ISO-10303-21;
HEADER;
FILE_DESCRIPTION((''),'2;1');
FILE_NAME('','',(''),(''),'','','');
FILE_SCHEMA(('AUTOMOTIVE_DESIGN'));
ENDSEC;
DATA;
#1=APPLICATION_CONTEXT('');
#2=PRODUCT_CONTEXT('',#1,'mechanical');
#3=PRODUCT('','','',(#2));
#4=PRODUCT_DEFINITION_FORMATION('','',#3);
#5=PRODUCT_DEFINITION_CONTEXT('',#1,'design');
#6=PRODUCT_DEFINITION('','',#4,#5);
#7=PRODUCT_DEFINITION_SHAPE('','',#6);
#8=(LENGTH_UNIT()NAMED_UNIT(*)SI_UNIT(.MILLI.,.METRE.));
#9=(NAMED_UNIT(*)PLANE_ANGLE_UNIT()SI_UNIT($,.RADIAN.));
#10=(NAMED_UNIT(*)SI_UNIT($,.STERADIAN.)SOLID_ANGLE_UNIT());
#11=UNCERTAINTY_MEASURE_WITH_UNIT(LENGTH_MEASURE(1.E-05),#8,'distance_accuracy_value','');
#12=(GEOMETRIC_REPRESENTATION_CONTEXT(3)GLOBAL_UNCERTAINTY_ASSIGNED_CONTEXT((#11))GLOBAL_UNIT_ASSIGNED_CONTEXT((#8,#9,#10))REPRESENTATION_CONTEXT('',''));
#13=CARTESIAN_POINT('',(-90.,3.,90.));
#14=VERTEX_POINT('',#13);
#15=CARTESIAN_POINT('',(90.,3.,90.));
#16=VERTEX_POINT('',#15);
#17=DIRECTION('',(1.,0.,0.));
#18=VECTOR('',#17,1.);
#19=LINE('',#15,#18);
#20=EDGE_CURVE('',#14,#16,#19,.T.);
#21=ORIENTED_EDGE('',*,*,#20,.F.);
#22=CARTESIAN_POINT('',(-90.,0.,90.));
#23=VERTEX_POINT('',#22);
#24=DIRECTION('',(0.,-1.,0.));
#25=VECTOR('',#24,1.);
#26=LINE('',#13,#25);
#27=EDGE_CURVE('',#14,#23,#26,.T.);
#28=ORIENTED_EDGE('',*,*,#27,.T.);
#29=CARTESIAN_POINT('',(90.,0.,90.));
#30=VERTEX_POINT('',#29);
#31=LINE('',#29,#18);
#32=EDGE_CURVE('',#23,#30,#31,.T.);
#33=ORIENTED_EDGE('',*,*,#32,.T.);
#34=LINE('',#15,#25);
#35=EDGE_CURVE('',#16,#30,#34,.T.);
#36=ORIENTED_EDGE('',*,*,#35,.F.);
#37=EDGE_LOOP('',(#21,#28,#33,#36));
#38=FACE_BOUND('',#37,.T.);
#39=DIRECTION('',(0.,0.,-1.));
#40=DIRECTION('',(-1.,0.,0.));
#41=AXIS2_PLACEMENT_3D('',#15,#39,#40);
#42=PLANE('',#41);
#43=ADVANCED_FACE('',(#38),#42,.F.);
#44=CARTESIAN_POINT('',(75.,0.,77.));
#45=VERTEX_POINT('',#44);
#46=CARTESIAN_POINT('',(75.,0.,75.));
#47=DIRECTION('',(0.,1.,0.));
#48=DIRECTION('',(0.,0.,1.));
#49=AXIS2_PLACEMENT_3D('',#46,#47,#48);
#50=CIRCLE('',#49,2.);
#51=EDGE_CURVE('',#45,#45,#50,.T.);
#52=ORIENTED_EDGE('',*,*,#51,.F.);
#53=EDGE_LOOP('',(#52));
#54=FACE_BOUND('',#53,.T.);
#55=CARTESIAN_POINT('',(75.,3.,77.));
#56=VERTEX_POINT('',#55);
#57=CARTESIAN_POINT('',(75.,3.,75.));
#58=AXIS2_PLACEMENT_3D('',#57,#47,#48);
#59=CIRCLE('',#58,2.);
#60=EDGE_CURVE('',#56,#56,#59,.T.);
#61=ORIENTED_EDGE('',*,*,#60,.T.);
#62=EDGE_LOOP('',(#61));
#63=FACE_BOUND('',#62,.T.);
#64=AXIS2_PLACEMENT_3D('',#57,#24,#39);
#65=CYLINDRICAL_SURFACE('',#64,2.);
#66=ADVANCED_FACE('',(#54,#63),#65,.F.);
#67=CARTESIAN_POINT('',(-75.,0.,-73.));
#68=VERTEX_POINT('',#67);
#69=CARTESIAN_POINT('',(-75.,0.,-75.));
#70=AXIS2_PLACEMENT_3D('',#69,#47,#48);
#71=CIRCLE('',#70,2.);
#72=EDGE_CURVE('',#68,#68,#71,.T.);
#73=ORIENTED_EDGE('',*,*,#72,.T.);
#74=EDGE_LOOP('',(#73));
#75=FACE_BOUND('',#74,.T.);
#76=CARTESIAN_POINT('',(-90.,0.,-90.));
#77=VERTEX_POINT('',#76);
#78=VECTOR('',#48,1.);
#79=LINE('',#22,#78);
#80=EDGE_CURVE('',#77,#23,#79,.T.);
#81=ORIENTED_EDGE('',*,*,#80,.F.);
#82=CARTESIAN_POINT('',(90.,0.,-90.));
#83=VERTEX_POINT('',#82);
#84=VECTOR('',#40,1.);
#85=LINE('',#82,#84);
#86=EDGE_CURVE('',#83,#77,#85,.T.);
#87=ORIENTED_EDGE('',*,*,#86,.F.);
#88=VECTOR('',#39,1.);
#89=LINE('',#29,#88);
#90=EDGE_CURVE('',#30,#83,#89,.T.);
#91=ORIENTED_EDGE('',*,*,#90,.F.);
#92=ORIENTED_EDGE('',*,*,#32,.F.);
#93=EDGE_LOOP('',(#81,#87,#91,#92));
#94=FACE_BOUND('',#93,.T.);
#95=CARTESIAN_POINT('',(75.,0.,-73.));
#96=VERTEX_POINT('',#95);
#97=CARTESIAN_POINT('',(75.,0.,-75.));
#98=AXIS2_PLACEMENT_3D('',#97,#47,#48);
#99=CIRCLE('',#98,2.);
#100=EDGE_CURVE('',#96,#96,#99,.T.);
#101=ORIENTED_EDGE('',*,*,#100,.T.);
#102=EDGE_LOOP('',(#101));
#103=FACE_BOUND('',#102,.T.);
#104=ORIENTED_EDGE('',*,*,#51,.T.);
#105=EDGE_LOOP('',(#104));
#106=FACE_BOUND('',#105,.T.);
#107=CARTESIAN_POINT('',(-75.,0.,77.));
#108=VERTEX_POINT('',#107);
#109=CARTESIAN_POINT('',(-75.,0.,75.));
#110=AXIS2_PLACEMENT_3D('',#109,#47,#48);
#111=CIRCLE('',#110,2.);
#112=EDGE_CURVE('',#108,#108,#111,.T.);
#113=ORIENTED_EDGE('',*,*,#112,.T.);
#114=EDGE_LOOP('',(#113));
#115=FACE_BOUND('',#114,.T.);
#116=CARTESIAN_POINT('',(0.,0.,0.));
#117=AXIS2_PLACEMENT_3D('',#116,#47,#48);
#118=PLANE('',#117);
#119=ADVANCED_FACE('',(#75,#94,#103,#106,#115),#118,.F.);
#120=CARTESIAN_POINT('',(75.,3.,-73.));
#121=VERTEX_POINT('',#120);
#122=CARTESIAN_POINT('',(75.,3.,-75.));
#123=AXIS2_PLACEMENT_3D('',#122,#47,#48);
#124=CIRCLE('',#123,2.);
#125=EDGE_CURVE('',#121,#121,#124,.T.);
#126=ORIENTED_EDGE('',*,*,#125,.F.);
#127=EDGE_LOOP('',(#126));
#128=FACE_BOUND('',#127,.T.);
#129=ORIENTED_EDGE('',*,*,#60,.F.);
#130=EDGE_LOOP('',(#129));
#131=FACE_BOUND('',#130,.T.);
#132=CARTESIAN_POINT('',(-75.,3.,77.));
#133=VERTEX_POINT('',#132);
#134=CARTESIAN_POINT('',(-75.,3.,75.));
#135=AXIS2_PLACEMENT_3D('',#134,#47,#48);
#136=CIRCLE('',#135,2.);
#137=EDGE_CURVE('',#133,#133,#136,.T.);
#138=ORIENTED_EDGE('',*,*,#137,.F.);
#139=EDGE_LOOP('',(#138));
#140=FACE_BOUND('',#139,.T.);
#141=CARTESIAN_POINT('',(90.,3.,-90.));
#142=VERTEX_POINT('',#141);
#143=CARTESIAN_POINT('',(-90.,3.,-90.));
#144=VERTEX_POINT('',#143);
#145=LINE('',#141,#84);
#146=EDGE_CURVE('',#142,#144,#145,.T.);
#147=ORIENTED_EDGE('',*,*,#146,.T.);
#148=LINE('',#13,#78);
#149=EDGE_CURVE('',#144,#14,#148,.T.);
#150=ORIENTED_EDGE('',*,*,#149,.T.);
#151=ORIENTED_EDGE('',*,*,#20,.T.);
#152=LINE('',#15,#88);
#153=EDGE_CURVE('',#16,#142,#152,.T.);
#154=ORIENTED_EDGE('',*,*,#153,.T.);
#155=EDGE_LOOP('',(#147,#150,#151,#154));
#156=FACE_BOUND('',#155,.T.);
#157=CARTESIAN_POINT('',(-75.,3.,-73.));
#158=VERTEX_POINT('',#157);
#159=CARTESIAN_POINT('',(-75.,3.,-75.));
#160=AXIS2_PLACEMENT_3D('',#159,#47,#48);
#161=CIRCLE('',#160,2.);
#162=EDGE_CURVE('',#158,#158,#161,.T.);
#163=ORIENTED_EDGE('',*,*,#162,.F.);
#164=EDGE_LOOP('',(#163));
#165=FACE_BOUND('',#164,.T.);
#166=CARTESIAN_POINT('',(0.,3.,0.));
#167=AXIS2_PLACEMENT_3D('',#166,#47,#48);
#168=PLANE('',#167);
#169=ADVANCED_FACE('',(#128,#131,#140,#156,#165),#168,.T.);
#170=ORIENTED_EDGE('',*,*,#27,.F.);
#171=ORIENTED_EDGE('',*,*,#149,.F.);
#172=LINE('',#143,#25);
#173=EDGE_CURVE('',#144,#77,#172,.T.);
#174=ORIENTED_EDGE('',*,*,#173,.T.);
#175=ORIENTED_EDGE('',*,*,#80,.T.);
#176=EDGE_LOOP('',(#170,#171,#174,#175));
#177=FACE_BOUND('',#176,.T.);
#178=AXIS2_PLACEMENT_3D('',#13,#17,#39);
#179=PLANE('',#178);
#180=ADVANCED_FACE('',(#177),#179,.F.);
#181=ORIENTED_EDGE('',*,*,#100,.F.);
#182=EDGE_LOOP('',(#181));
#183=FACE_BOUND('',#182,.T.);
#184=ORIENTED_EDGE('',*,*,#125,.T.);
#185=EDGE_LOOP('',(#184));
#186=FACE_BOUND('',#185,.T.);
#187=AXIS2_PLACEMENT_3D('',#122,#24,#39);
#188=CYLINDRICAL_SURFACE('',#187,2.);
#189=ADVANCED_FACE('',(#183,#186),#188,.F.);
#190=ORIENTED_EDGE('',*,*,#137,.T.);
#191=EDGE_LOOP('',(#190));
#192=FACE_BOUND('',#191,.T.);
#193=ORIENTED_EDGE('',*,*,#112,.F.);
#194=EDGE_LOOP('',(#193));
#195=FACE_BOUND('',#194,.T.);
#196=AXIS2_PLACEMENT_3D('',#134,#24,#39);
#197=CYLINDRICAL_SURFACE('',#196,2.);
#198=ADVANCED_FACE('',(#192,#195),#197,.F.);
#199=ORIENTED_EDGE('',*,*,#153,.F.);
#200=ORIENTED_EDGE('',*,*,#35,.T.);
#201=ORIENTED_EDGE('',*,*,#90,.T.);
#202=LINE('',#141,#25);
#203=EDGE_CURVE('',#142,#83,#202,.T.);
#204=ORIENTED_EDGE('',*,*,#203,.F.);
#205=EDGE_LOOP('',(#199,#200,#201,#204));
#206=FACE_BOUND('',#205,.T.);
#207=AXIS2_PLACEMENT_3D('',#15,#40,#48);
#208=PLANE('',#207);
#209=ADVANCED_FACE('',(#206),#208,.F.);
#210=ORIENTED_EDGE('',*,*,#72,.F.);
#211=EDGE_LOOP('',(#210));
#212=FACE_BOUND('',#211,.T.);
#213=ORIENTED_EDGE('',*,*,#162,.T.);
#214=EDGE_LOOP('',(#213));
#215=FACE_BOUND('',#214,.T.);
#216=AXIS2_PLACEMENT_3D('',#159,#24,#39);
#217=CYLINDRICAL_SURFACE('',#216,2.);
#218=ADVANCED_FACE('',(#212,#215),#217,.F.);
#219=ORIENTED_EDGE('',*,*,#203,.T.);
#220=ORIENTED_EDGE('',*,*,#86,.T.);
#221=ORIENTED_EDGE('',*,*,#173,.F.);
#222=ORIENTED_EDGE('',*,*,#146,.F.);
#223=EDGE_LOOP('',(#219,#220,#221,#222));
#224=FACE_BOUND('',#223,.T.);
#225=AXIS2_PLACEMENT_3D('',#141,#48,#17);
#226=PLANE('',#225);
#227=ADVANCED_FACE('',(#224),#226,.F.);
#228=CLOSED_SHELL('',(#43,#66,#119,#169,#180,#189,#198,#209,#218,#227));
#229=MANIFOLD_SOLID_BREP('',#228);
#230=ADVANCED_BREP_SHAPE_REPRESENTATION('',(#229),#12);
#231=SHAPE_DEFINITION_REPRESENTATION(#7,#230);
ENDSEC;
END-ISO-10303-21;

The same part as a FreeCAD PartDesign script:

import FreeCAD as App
import Part
import Sketcher
from FreeCAD import Vector


def add_polygon(sketch, points):
    """Adds a closed chain of lines whose ends are joined by coincident constraints."""
    first, n = sketch.GeometryCount, len(points)
    for a, b in zip(points, points[1:] + points[:1]):
        sketch.addGeometry(Part.LineSegment(App.Vector(*a, 0), App.Vector(*b, 0)), False)
    for i in range(n):
        sketch.addConstraint(Sketcher.Constraint("Coincident", first + i, 2, first + (i + 1) % n, 1))

doc = App.newDocument("Part")
body = doc.addObject("PartDesign::Body", "Body")

sketch1 = body.newObject("Sketcher::SketchObject", "Sketch")
sketch1.AttachmentSupport = (doc.getObject("XZ_Plane"), [""])
sketch1.MapMode = "FlatFace"
add_polygon(sketch1, [(-90, -90), (-90, 90), (90, 90), (90, -90)])
sketch1.addGeometry(Part.Circle(Vector(-75, 75, 0), Vector(0, 0, 1), 2), False)
sketch1.addGeometry(Part.Circle(Vector(75, 75, 0), Vector(0, 0, 1), 2), False)
sketch1.addGeometry(Part.Circle(Vector(-75, -75, 0), Vector(0, 0, 1), 2), False)
sketch1.addGeometry(Part.Circle(Vector(75, -75, 0), Vector(0, 0, 1), 2), False)
sketch1.addConstraint(Sketcher.Constraint("Vertical", 0))
sketch1.addConstraint(Sketcher.Constraint("Horizontal", 1))
sketch1.addConstraint(Sketcher.Constraint("Vertical", 2))
sketch1.addConstraint(Sketcher.Constraint("Horizontal", 3))
sketch1.addConstraint(Sketcher.Constraint("Equal", 4, 5))
sketch1.addConstraint(Sketcher.Constraint("Equal", 5, 6))
sketch1.addConstraint(Sketcher.Constraint("Equal", 6, 7))
sketch1.addConstraint(Sketcher.Constraint("Symmetric", 5, 3, 6, 3, -1, 1))
sketch1.addConstraint(Sketcher.Constraint("Symmetric", 4, 3, 7, 3, -1, 1))
sketch1.addConstraint(Sketcher.Constraint("Symmetric", 0, 2, 2, 2, -1, 1))
sketch1.addConstraint(Sketcher.Constraint("Symmetric", 4, 3, 5, 3, -2))
sketch1.addConstraint(Sketcher.Constraint("Equal", 3, 0))
sketch1.addConstraint(Sketcher.Constraint("Diameter", 4, 4.0))
sketch1.addConstraint(Sketcher.Constraint("DistanceX", 1, 1, 1, 2, 180.0))
sketch1.addConstraint(Sketcher.Constraint("DistanceX", 4, 3, -1, 1, 75.0))
sketch1.addConstraint(Sketcher.Constraint("DistanceY", -1, 1, 4, 3, 75.0))
pad1 = body.newObject("PartDesign::Pad", "Pad")
pad1.Profile = sketch1
pad1.Length = 3
pad1.Reversed = True

doc.recompute()
